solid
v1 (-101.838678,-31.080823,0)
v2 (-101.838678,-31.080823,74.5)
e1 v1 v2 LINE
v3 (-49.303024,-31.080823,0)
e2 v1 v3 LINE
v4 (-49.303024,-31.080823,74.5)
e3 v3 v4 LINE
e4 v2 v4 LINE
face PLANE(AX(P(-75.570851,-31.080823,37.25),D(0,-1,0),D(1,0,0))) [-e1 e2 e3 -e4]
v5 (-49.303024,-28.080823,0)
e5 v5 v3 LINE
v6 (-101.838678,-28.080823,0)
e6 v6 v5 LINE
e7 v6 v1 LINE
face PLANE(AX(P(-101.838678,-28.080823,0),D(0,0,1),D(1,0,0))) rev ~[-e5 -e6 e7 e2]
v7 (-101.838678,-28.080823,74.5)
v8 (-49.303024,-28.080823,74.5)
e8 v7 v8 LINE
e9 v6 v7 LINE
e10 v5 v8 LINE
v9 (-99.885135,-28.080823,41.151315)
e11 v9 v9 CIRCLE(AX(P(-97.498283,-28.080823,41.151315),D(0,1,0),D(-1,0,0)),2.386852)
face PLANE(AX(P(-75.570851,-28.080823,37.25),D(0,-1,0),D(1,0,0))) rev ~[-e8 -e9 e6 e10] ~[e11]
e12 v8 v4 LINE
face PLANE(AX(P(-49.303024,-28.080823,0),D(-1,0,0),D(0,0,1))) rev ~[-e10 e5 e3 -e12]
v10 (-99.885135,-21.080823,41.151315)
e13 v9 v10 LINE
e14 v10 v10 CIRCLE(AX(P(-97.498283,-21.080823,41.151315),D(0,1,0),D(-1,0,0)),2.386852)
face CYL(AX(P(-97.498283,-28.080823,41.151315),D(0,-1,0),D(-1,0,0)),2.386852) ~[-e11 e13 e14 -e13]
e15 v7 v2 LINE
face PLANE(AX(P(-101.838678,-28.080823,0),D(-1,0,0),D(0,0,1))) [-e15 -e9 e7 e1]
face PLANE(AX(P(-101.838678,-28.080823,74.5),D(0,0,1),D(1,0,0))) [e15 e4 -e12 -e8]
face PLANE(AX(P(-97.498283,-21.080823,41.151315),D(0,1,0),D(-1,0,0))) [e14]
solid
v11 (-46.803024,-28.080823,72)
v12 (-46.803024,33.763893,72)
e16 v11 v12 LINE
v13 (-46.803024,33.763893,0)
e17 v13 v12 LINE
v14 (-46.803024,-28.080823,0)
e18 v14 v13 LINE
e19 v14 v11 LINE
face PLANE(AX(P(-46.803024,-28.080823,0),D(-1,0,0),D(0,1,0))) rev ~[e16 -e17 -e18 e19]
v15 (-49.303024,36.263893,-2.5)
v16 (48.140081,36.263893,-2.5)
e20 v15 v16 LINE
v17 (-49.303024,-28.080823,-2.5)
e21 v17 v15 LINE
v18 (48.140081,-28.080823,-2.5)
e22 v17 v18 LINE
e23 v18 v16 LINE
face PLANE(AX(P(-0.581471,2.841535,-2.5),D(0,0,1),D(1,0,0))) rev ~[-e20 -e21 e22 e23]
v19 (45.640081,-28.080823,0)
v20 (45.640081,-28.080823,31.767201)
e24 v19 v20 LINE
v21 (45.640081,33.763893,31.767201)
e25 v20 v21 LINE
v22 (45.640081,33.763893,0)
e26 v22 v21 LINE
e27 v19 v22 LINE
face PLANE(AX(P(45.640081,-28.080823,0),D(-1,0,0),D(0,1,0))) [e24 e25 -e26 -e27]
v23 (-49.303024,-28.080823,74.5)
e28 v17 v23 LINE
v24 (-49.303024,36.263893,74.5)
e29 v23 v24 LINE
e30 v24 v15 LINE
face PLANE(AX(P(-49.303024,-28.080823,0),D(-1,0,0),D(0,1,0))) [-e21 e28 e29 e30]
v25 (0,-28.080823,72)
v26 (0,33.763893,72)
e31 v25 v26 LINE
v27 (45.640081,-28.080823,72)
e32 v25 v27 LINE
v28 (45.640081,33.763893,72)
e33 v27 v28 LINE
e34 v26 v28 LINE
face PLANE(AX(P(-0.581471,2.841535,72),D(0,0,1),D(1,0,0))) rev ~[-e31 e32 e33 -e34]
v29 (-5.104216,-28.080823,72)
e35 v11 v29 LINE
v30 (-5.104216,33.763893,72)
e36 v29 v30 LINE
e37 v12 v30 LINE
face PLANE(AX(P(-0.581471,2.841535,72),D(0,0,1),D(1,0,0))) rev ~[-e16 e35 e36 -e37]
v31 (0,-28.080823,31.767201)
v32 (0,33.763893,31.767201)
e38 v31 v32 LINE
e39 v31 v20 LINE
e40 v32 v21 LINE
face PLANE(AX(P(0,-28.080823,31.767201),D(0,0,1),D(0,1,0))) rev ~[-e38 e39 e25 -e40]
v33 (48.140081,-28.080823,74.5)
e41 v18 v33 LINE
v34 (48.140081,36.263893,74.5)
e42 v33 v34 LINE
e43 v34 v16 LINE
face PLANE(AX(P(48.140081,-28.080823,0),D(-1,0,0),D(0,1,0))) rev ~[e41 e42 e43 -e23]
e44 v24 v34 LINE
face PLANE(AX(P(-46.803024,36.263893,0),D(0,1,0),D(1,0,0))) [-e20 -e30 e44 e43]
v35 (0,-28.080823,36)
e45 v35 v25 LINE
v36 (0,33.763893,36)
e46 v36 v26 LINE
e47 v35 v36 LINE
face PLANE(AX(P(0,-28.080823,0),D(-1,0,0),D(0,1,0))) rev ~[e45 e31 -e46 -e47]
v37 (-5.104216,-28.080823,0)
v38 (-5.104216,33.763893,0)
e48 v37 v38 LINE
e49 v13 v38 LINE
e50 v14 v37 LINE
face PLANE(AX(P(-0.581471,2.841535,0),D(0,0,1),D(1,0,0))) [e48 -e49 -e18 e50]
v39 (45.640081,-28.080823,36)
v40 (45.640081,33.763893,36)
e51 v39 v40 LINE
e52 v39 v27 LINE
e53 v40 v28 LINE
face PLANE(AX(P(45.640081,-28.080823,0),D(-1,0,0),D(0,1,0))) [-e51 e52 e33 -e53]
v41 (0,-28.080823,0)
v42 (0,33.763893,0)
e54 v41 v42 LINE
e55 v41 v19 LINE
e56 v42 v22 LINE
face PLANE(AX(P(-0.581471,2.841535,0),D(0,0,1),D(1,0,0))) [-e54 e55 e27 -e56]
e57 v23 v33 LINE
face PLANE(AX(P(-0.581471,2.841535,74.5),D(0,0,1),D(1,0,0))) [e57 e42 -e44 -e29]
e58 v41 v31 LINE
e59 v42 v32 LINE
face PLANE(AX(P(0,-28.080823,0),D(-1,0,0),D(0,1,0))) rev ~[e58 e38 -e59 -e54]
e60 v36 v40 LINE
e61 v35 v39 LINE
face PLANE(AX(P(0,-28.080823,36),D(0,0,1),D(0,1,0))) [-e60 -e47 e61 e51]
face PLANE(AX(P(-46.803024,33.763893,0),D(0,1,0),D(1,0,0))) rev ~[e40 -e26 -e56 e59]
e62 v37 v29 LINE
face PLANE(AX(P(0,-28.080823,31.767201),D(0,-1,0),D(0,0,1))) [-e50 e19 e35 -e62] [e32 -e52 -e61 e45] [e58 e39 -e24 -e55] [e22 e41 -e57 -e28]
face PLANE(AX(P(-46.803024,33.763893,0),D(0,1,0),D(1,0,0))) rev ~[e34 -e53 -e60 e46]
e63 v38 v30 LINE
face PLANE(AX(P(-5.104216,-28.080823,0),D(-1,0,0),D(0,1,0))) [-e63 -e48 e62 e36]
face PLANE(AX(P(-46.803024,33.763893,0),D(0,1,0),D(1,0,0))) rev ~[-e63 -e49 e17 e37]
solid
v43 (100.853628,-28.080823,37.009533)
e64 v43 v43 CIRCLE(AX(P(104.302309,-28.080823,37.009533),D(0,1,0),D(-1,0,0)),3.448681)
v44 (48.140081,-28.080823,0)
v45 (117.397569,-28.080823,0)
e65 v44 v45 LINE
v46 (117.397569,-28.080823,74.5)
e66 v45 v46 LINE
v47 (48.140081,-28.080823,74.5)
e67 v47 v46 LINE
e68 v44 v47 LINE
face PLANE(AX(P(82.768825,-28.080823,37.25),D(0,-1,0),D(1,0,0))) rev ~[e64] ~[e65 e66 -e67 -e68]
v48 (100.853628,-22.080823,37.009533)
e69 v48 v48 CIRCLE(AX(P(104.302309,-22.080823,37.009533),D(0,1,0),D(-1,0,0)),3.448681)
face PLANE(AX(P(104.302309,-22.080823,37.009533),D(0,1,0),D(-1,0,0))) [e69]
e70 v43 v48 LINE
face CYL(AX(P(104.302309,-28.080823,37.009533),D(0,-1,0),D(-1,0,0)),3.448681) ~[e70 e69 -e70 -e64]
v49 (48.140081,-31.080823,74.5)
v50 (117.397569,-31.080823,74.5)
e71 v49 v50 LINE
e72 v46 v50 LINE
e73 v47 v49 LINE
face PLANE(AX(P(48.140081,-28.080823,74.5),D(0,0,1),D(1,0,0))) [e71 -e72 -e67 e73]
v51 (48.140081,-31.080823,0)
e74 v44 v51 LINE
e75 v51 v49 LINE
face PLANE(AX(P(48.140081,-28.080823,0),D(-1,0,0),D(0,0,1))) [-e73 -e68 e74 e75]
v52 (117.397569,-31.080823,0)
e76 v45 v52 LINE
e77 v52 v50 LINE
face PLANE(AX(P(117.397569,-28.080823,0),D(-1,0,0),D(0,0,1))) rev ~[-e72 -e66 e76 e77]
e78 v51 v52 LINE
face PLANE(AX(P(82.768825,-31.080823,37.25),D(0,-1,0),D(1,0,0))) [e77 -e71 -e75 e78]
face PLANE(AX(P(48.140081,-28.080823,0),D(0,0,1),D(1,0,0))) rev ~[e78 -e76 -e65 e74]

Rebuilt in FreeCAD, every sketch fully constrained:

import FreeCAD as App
import Part
import Sketcher

V = App.Vector
Q = App.Units.Quantity


def faces_at(feature, points):
    """Names of the faces that lie closest to the given points."""
    faces = feature.Shape.Faces
    near = lambda p: min(range(len(faces)), key=lambda i: faces[i].distToShape(Part.Vertex(*p))[0])
    return sorted({f"Face{near(p) + 1}" for p in points})

doc = App.newDocument("Part")
body = doc.addObject("PartDesign::Body", "Body")

# Sketch on XY plane
sketch1 = body.newObject("Sketcher::SketchObject", "Sketch")
sketch1.AttachmentSupport = (doc.getObject("XY_Plane"), [""])
sketch1.MapMode = "FlatFace"
sketch1.addGeometry([
    Part.LineSegment(V(-47, 34, 0), V(-47, -28, 0)),
    Part.LineSegment(V(-47, -28, 0), V(46, -28, 0)),
    Part.LineSegment(V(46, -28, 0), V(46, 34, 0)),
    Part.LineSegment(V(46, 34, 0), V(-47, 34, 0)),
], False)
sketch1.addConstraint([
    Sketcher.Constraint("Coincident", 0, 2, 1, 1),
    Sketcher.Constraint("Coincident", 1, 2, 2, 1),
    Sketcher.Constraint("Coincident", 2, 2, 3, 1),
    Sketcher.Constraint("Coincident", 3, 2, 0, 1),
    Sketcher.Constraint("Vertical", 0),
    Sketcher.Constraint("Horizontal", 1),
    Sketcher.Constraint("Vertical", 2),
    Sketcher.Constraint("Horizontal", 3),
    Sketcher.Constraint("DistanceX", 1, 1, 1, 2, Q("92.443105 mm")),
    Sketcher.Constraint("DistanceY", 0, 2, 0, 1, Q("61.844716 mm")),
    Sketcher.Constraint("DistanceX", -1, 1, 1, 2, Q("45.640081 mm")),
    Sketcher.Constraint("DistanceY", 0, 2, -1, 1, Q("28.080823 mm")),
])
pad1 = body.newObject("PartDesign::Pad", "Pad")
pad1.Profile = sketch1
pad1.Length = 72
doc.recompute()

thickness = body.newObject("PartDesign::Thickness", "Thickness")
thickness.Base = (pad1, faces_at(pad1, [(-0.581, -28.081, 36)]))
thickness.Value = 2.5
thickness.Reversed = False
thickness.Join = "Intersection"

# Sketch on XY plane
sketch2 = body.newObject("Sketcher::SketchObject", "Sketch001")
sketch2.AttachmentSupport = (doc.getObject("XY_Plane"), [""])
sketch2.MapMode = "FlatFace"
sketch2.addGeometry([
    Part.LineSegment(V(-5, 34, 0), V(-5, -28, 0)),
    Part.LineSegment(V(-5, -28, 0), V(0, -28, 0)),
    Part.LineSegment(V(0, -28, 0), V(0, 34, 0)),
    Part.LineSegment(V(0, 34, 0), V(-5, 34, 0)),
], False)
sketch2.addConstraint([
    Sketcher.Constraint("Coincident", 0, 2, 1, 1),
    Sketcher.Constraint("Coincident", 1, 2, 2, 1),
    Sketcher.Constraint("Coincident", 2, 2, 3, 1),
    Sketcher.Constraint("Coincident", 3, 2, 0, 1),
    Sketcher.Constraint("Vertical", 0),
    Sketcher.Constraint("Horizontal", 1),
    Sketcher.Constraint("Vertical", 2),
    Sketcher.Constraint("Horizontal", 3),
    Sketcher.Constraint("PointOnObject", 1, 2, -2),
    Sketcher.Constraint("DistanceX", 1, 1, 1, 2, Q("5.104216 mm")),
    Sketcher.Constraint("DistanceY", 0, 2, 0, 1, Q("61.844716 mm")),
    Sketcher.Constraint("DistanceY", 0, 2, -1, 1, Q("28.080823 mm")),
])
pad2 = body.newObject("PartDesign::Pad", "Pad001")
pad2.Profile = sketch2
pad2.Length = 72

# Sketch on YZ plane
sketch3 = body.newObject("Sketcher::SketchObject", "Sketch002")
sketch3.AttachmentSupport = (doc.getObject("YZ_Plane"), [""])
sketch3.MapMode = "FlatFace"
sketch3.addGeometry([
    Part.LineSegment(V(-28.1, 36, 0), V(-28.1, 31.8, 0)),
    Part.LineSegment(V(-28.1, 31.8, 0), V(33.8, 31.8, 0)),
    Part.LineSegment(V(33.8, 31.8, 0), V(33.8, 36, 0)),
    Part.LineSegment(V(33.8, 36, 0), V(-28.1, 36, 0)),
], False)
sketch3.addConstraint([
    Sketcher.Constraint("Coincident", 0, 2, 1, 1),
    Sketcher.Constraint("Coincident", 1, 2, 2, 1),
    Sketcher.Constraint("Coincident", 2, 2, 3, 1),
    Sketcher.Constraint("Coincident", 3, 2, 0, 1),
    Sketcher.Constraint("Vertical", 0),
    Sketcher.Constraint("Horizontal", 1),
    Sketcher.Constraint("Vertical", 2),
    Sketcher.Constraint("Horizontal", 3),
    Sketcher.Constraint("DistanceY", -1, 1, 2, 2, Q("36 mm")),
    Sketcher.Constraint("DistanceY", 0, 2, 0, 1, Q("4.232799 mm")),
    Sketcher.Constraint("DistanceX", 1, 1, 1, 2, Q("61.844716 mm")),
    Sketcher.Constraint("DistanceX", 0, 2, -1, 1, Q("28.080823 mm")),
])
pad3 = body.newObject("PartDesign::Pad", "Pad002")
pad3.Profile = sketch3
pad3.Length = 47
body2 = doc.addObject("PartDesign::Body", "Body001")

# Sketch on XZ plane
sketch4 = body2.newObject("Sketcher::SketchObject", "Sketch003")
sketch4.AttachmentSupport = (doc.getObject("XZ_Plane001"), [""])
sketch4.MapMode = "FlatFace"
sketch4.AttachmentOffset = App.Placement(V(0, 0, 28.080823), App.Rotation())
sketch4.addGeometry([
    Part.LineSegment(V(-102, 74, 0), V(-102, 0, 0)),
    Part.LineSegment(V(-102, 0, 0), V(-49, 0, 0)),
    Part.LineSegment(V(-49, 0, 0), V(-49, 74, 0)),
    Part.LineSegment(V(-49, 74, 0), V(-102, 74, 0)),
], False)
sketch4.addConstraint([
    Sketcher.Constraint("Coincident", 0, 2, 1, 1),
    Sketcher.Constraint("Coincident", 1, 2, 2, 1),
    Sketcher.Constraint("Coincident", 2, 2, 3, 1),
    Sketcher.Constraint("Coincident", 3, 2, 0, 1),
    Sketcher.Constraint("Vertical", 0),
    Sketcher.Constraint("Horizontal", 1),
    Sketcher.Constraint("Vertical", 2),
    Sketcher.Constraint("Horizontal", 3),
    Sketcher.Constraint("PointOnObject", 0, 2, -1),
    Sketcher.Constraint("DistanceY", 0, 2, 0, 1, Q("74.5 mm")),
    Sketcher.Constraint("DistanceX", 1, 1, 1, 2, Q("52.535654 mm")),
    Sketcher.Constraint("DistanceX", 0, 2, -1, 1, Q("101.838678 mm")),
])
pad4 = body2.newObject("PartDesign::Pad", "Pad003")
pad4.Profile = sketch4
pad4.Length = 3

# Sketch on XZ plane
sketch5 = body2.newObject("Sketcher::SketchObject", "Sketch004")
sketch5.AttachmentSupport = (doc.getObject("XZ_Plane001"), [""])
sketch5.MapMode = "FlatFace"
sketch5.AttachmentOffset = App.Placement(V(0, 0, 28.080823), App.Rotation())
sketch5.addGeometry(Part.Circle(V(-97.5, 41.2, 0), V(0, 0, 1), 2.4), False)
sketch5.addConstraint([
    Sketcher.Constraint("Diameter", 0, Q("4.773705 mm")),
    Sketcher.Constraint("DistanceX", 0, 3, -1, 1, Q("97.498283 mm")),
    Sketcher.Constraint("DistanceY", -1, 1, 0, 3, Q("41.151315 mm")),
])
pad5 = body2.newObject("PartDesign::Pad", "Pad004")
pad5.Profile = sketch5
pad5.Length = 7
pad5.Reversed = True
body3 = doc.addObject("PartDesign::Body", "Body002")

# Sketch on XZ plane
sketch6 = body3.newObject("Sketcher::SketchObject", "Sketch005")
sketch6.AttachmentSupport = (doc.getObject("XZ_Plane002"), [""])
sketch6.MapMode = "FlatFace"
sketch6.AttachmentOffset = App.Placement(V(0, 0, 28.080823), App.Rotation())
sketch6.addGeometry([
    Part.LineSegment(V(48, 74, 0), V(48, 0, 0)),
    Part.LineSegment(V(48, 0, 0), V(117, 0, 0)),
    Part.LineSegment(V(117, 0, 0), V(117, 74, 0)),
    Part.LineSegment(V(117, 74, 0), V(48, 74, 0)),
], False)
sketch6.addConstraint([
    Sketcher.Constraint("Coincident", 0, 2, 1, 1),
    Sketcher.Constraint("Coincident", 1, 2, 2, 1),
    Sketcher.Constraint("Coincident", 2, 2, 3, 1),
    Sketcher.Constraint("Coincident", 3, 2, 0, 1),
    Sketcher.Constraint("Vertical", 0),
    Sketcher.Constraint("Horizontal", 1),
    Sketcher.Constraint("Vertical", 2),
    Sketcher.Constraint("Horizontal", 3),
    Sketcher.Constraint("PointOnObject", 0, 2, -1),
    Sketcher.Constraint("DistanceY", 0, 2, 0, 1, Q("74.5 mm")),
    Sketcher.Constraint("DistanceX", 1, 1, 1, 2, Q("69.257488 mm")),
    Sketcher.Constraint("DistanceX", -1, 1, 0, 2, Q("48.140081 mm")),
])
pad6 = body3.newObject("PartDesign::Pad", "Pad005")
pad6.Profile = sketch6
pad6.Length = 3

# Sketch on XZ plane
sketch7 = body3.newObject("Sketcher::SketchObject", "Sketch006")
sketch7.AttachmentSupport = (doc.getObject("XZ_Plane002"), [""])
sketch7.MapMode = "FlatFace"
sketch7.AttachmentOffset = App.Placement(V(0, 0, 28.080823), App.Rotation())
sketch7.addGeometry(Part.Circle(V(104.3, 37, 0), V(0, 0, 1), 3.4), False)
sketch7.addConstraint([
    Sketcher.Constraint("Diameter", 0, Q("6.897363 mm")),
    Sketcher.Constraint("DistanceX", -1, 1, 0, 3, Q("104.302309 mm")),
    Sketcher.Constraint("DistanceY", -1, 1, 0, 3, Q("37.009533 mm")),
])
pad7 = body3.newObject("PartDesign::Pad", "Pad006")
pad7.Profile = sketch7
pad7.Length = 6
pad7.Reversed = True

doc.recompute()
